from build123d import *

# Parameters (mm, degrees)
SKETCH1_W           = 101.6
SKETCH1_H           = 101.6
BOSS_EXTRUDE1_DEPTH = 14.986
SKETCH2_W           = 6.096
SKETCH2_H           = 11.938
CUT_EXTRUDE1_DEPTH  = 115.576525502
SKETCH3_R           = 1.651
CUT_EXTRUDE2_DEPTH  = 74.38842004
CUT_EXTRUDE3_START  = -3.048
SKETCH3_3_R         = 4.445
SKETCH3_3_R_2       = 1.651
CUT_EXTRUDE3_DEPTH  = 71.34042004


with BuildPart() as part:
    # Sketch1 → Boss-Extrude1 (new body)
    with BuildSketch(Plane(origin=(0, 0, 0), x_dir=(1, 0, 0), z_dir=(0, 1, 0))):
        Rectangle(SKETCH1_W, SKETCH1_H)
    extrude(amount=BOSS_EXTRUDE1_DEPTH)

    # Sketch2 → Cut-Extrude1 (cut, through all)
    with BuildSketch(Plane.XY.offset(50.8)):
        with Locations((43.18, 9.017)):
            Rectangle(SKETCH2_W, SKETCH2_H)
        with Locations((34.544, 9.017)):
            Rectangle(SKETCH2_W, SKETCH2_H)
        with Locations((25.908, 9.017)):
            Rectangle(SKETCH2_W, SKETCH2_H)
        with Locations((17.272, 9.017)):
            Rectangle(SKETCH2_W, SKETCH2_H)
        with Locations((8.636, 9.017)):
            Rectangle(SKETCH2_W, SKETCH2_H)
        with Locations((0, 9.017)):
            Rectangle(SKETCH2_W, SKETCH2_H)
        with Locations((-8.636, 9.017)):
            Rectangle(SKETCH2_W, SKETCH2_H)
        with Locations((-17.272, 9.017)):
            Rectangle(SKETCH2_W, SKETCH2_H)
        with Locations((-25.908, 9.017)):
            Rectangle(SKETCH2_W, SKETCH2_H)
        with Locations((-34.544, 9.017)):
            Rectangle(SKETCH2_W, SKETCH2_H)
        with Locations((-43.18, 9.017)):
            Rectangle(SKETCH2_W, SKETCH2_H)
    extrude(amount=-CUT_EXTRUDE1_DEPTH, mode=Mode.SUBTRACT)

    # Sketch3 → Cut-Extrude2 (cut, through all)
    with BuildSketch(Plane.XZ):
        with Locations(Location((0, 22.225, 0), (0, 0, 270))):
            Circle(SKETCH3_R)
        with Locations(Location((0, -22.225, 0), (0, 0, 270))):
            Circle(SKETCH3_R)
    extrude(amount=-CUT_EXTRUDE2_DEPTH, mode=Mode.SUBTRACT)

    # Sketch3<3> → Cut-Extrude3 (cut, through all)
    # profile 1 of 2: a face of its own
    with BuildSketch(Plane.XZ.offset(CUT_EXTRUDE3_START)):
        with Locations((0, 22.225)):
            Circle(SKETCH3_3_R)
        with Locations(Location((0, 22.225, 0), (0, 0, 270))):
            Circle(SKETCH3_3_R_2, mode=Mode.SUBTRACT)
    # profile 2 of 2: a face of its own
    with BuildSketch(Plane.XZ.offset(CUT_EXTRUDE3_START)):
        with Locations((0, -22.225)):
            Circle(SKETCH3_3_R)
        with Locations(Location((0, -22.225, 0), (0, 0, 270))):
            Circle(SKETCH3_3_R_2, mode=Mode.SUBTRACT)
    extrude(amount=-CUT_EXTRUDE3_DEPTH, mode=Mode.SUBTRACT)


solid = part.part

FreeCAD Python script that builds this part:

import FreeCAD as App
import Part
import Sketcher

V = App.Vector
Q = App.Units.Quantity

doc = App.newDocument("Part")
body = doc.addObject("PartDesign::Body", "Body")

# Sketch on XZ plane
sketch1 = body.newObject("Sketcher::SketchObject", "Sketch")
sketch1.AttachmentSupport = (doc.getObject("XZ_Plane"), [""])
sketch1.MapMode = "FlatFace"
sketch1.addGeometry([
    Part.LineSegment(V(-51, -51, 0), V(-51, 51, 0)),
    Part.LineSegment(V(-51, 51, 0), V(51, 51, 0)),
    Part.LineSegment(V(51, 51, 0), V(51, -51, 0)),
    Part.LineSegment(V(51, -51, 0), V(-51, -51, 0)),
], False)
sketch1.addConstraint([
    Sketcher.Constraint("Coincident", 0, 2, 1, 1),
    Sketcher.Constraint("Coincident", 1, 2, 2, 1),
    Sketcher.Constraint("Coincident", 2, 2, 3, 1),
    Sketcher.Constraint("Coincident", 3, 2, 0, 1),
    Sketcher.Constraint("Vertical", 0),
    Sketcher.Constraint("Horizontal", 1),
    Sketcher.Constraint("Vertical", 2),
    Sketcher.Constraint("Horizontal", 3),
    Sketcher.Constraint("Symmetric", 0, 2, 2, 2, -1, 1),
    Sketcher.Constraint("Equal", 3, 0),
    Sketcher.Constraint("DistanceX", 1, 1, 1, 2, Q("4 in")),
])
pad1 = body.newObject("PartDesign::Pad", "Pad")
pad1.Profile = sketch1
pad1.Length = Q("0.59 in")
pad1.Reversed = True

# Sketch on XY plane
sketch2 = body.newObject("Sketcher::SketchObject", "Sketch001")
sketch2.AttachmentSupport = (doc.getObject("XY_Plane"), [""])
sketch2.MapMode = "FlatFace"
sketch2.AttachmentOffset = App.Placement(V(0, 0, 2 * 25.4), App.Rotation())
sketch2.addGeometry([
    Part.LineSegment(V(40, 15, 0), V(40, 3, 0)),  # 0
    Part.LineSegment(V(40, 3, 0), V(46, 3, 0)),  # 1
    Part.LineSegment(V(46, 3, 0), V(46, 15, 0)),  # 2
    Part.LineSegment(V(46, 15, 0), V(40, 15, 0)),  # 3
    Part.LineSegment(V(31, 15, 0), V(31, 3, 0)),  # 4
    Part.LineSegment(V(31, 3, 0), V(38, 3, 0)),  # 5
    Part.LineSegment(V(38, 3, 0), V(38, 15, 0)),  # 6
    Part.LineSegment(V(38, 15, 0), V(31, 15, 0)),  # 7
    Part.LineSegment(V(23, 15, 0), V(23, 3, 0)),  # 8
    Part.LineSegment(V(23, 3, 0), V(29, 3, 0)),  # 9
    Part.LineSegment(V(29, 3, 0), V(29, 15, 0)),  # 10
    Part.LineSegment(V(29, 15, 0), V(23, 15, 0)),  # 11
    Part.LineSegment(V(14, 15, 0), V(14, 3, 0)),  # 12
    Part.LineSegment(V(14, 3, 0), V(20, 3, 0)),  # 13
    Part.LineSegment(V(20, 3, 0), V(20, 15, 0)),  # 14
    Part.LineSegment(V(20, 15, 0), V(14, 15, 0)),  # 15
    Part.LineSegment(V(6, 15, 0), V(6, 3, 0)),  # 16
    Part.LineSegment(V(6, 3, 0), V(12, 3, 0)),  # 17
    Part.LineSegment(V(12, 3, 0), V(12, 15, 0)),  # 18
    Part.LineSegment(V(12, 15, 0), V(6, 15, 0)),  # 19
    Part.LineSegment(V(-3, 15, 0), V(-3, 3, 0)),  # 20
    Part.LineSegment(V(-3, 3, 0), V(3, 3, 0)),  # 21
    Part.LineSegment(V(3, 3, 0), V(3, 15, 0)),  # 22
    Part.LineSegment(V(3, 15, 0), V(-3, 15, 0)),  # 23
    Part.LineSegment(V(-12, 15, 0), V(-12, 3, 0)),  # 24
    Part.LineSegment(V(-12, 3, 0), V(-6, 3, 0)),  # 25
    Part.LineSegment(V(-6, 3, 0), V(-6, 15, 0)),  # 26
    Part.LineSegment(V(-6, 15, 0), V(-12, 15, 0)),  # 27
    Part.LineSegment(V(-20, 15, 0), V(-20, 3, 0)),  # 28
    Part.LineSegment(V(-20, 3, 0), V(-14, 3, 0)),  # 29
    Part.LineSegment(V(-14, 3, 0), V(-14, 15, 0)),  # 30
    Part.LineSegment(V(-14, 15, 0), V(-20, 15, 0)),  # 31
    Part.LineSegment(V(-29, 15, 0), V(-29, 3, 0)),  # 32
    Part.LineSegment(V(-29, 3, 0), V(-23, 3, 0)),  # 33
    Part.LineSegment(V(-23, 3, 0), V(-23, 15, 0)),  # 34
    Part.LineSegment(V(-23, 15, 0), V(-29, 15, 0)),  # 35
    Part.LineSegment(V(-38, 15, 0), V(-38, 3, 0)),  # 36
    Part.LineSegment(V(-38, 3, 0), V(-31, 3, 0)),  # 37
    Part.LineSegment(V(-31, 3, 0), V(-31, 15, 0)),  # 38
    Part.LineSegment(V(-31, 15, 0), V(-38, 15, 0)),  # 39
    Part.LineSegment(V(-46, 15, 0), V(-46, 3, 0)),  # 40
    Part.LineSegment(V(-46, 3, 0), V(-40, 3, 0)),  # 41
    Part.LineSegment(V(-40, 3, 0), V(-40, 15, 0)),  # 42
    Part.LineSegment(V(-40, 15, 0), V(-46, 15, 0)),  # 43
], False)
sketch2.addConstraint([
    Sketcher.Constraint("Coincident", 0, 2, 1, 1),
    Sketcher.Constraint("Coincident", 1, 2, 2, 1),
    Sketcher.Constraint("Coincident", 2, 2, 3, 1),
    Sketcher.Constraint("Coincident", 3, 2, 0, 1),
    Sketcher.Constraint("Coincident", 4, 2, 5, 1),
    Sketcher.Constraint("Coincident", 5, 2, 6, 1),
    Sketcher.Constraint("Coincident", 6, 2, 7, 1),
    Sketcher.Constraint("Coincident", 7, 2, 4, 1),
    Sketcher.Constraint("Coincident", 8, 2, 9, 1),
    Sketcher.Constraint("Coincident", 9, 2, 10, 1),
    Sketcher.Constraint("Coincident", 10, 2, 11, 1),
    Sketcher.Constraint("Coincident", 11, 2, 8, 1),
    Sketcher.Constraint("Coincident", 12, 2, 13, 1),
    Sketcher.Constraint("Coincident", 13, 2, 14, 1),
    Sketcher.Constraint("Coincident", 14, 2, 15, 1),
    Sketcher.Constraint("Coincident", 15, 2, 12, 1),
    Sketcher.Constraint("Coincident", 16, 2, 17, 1),
    Sketcher.Constraint("Coincident", 17, 2, 18, 1),
    Sketcher.Constraint("Coincident", 18, 2, 19, 1),
    Sketcher.Constraint("Coincident", 19, 2, 16, 1),
    Sketcher.Constraint("Coincident", 20, 2, 21, 1),
    Sketcher.Constraint("Coincident", 21, 2, 22, 1),
    Sketcher.Constraint("Coincident", 22, 2, 23, 1),
    Sketcher.Constraint("Coincident", 23, 2, 20, 1),
    Sketcher.Constraint("Coincident", 24, 2, 25, 1),
    Sketcher.Constraint("Coincident", 25, 2, 26, 1),
    Sketcher.Constraint("Coincident", 26, 2, 27, 1),
    Sketcher.Constraint("Coincident", 27, 2, 24, 1),
    Sketcher.Constraint("Coincident", 28, 2, 29, 1),
    Sketcher.Constraint("Coincident", 29, 2, 30, 1),
    Sketcher.Constraint("Coincident", 30, 2, 31, 1),
    Sketcher.Constraint("Coincident", 31, 2, 28, 1),
    Sketcher.Constraint("Coincident", 32, 2, 33, 1),
    Sketcher.Constraint("Coincident", 33, 2, 34, 1),
    Sketcher.Constraint("Coincident", 34, 2, 35, 1),
    Sketcher.Constraint("Coincident", 35, 2, 32, 1),
    Sketcher.Constraint("Coincident", 36, 2, 37, 1),
    Sketcher.Constraint("Coincident", 37, 2, 38, 1),
    Sketcher.Constraint("Coincident", 38, 2, 39, 1),
    Sketcher.Constraint("Coincident", 39, 2, 36, 1),
    Sketcher.Constraint("Coincident", 40, 2, 41, 1),
    Sketcher.Constraint("Coincident", 41, 2, 42, 1),
    Sketcher.Constraint("Coincident", 42, 2, 43, 1),
    Sketcher.Constraint("Coincident", 43, 2, 40, 1),
    Sketcher.Constraint("Vertical", 0),
    Sketcher.Constraint("Horizontal", 1),
    Sketcher.Constraint("Vertical", 2),
    Sketcher.Constraint("Horizontal", 3),
    Sketcher.Constraint("Vertical", 4),
    Sketcher.Constraint("Horizontal", 5),
    Sketcher.Constraint("Vertical", 6),
    Sketcher.Constraint("Horizontal", 7),
    Sketcher.Constraint("Vertical", 8),
    Sketcher.Constraint("Horizontal", 9),
    Sketcher.Constraint("Vertical", 10),
    Sketcher.Constraint("Horizontal", 11),
    Sketcher.Constraint("Vertical", 12),
    Sketcher.Constraint("Horizontal", 13),
    Sketcher.Constraint("Vertical", 14),
    Sketcher.Constraint("Horizontal", 15),
    Sketcher.Constraint("Vertical", 16),
    Sketcher.Constraint("Horizontal", 17),
    Sketcher.Constraint("Vertical", 18),
    Sketcher.Constraint("Horizontal", 19),
    Sketcher.Constraint("Vertical", 20),
    Sketcher.Constraint("Horizontal", 21),
    Sketcher.Constraint("Vertical", 22),
    Sketcher.Constraint("Horizontal", 23),
    Sketcher.Constraint("Vertical", 24),
    Sketcher.Constraint("Horizontal", 25),
    Sketcher.Constraint("Vertical", 26),
    Sketcher.Constraint("Horizontal", 27),
    Sketcher.Constraint("Vertical", 28),
    Sketcher.Constraint("Horizontal", 29),
    Sketcher.Constraint("Vertical", 30),
    Sketcher.Constraint("Horizontal", 31),
    Sketcher.Constraint("Vertical", 32),
    Sketcher.Constraint("Horizontal", 33),
    Sketcher.Constraint("Vertical", 34),
    Sketcher.Constraint("Horizontal", 35),
    Sketcher.Constraint("Vertical", 36),
    Sketcher.Constraint("Horizontal", 37),
    Sketcher.Constraint("Vertical", 38),
    Sketcher.Constraint("Horizontal", 39),
    Sketcher.Constraint("Vertical", 40),
    Sketcher.Constraint("Horizontal", 41),
    Sketcher.Constraint("Vertical", 42),
    Sketcher.Constraint("Horizontal", 43),
    Sketcher.Constraint("Symmetric", 17, 2, 24, 2, -2),
    Sketcher.Constraint("Symmetric", 19, 2, 26, 2, -2),
    Sketcher.Constraint("Symmetric", 13, 2, 28, 2, -2),
    Sketcher.Constraint("Symmetric", 15, 2, 30, 2, -2),
    Sketcher.Constraint("Symmetric", 9, 2, 32, 2, -2),
    Sketcher.Constraint("Symmetric", 11, 2, 34, 2, -2),
    Sketcher.Constraint("Symmetric", 5, 2, 36, 2, -2),
    Sketcher.Constraint("Symmetric", 7, 2, 38, 2, -2),
    Sketcher.Constraint("Symmetric", 1, 2, 40, 2, -2),
    Sketcher.Constraint("Symmetric", 3, 2, 42, 2, -2),
    Sketcher.Constraint("Horizontal", 1, 2, 4, 2),
    Sketcher.Constraint("Horizontal", 3, 2, 6, 2),
    Sketcher.Constraint("Horizontal", 5, 2, 8, 2),
    Sketcher.Constraint("Horizontal", 7, 2, 10, 2),
    Sketcher.Constraint("Horizontal", 9, 2, 12, 2),
    Sketcher.Constraint("Horizontal", 11, 2, 14, 2),
    Sketcher.Constraint("Horizontal", 13, 2, 16, 2),
    Sketcher.Constraint("Horizontal", 15, 2, 18, 2),
    Sketcher.Constraint("Horizontal", 17, 2, 20, 2),
    Sketcher.Constraint("Horizontal", 19, 2, 22, 2),
    Sketcher.Constraint("Equal", 3, 5),
    Sketcher.Constraint("Equal", 7, 9),
    Sketcher.Constraint("Equal", 11, 13),
    Sketcher.Constraint("Equal", 15, 17),
    Sketcher.Constraint("Equal", 19, 21),
    Sketcher.Constraint("DistanceX", 1, 1, 1, 2, Q("0.24 in")),
    Sketcher.Constraint("DistanceY", 0, 2, 0, 1, Q("0.47 in")),
    Sketcher.Constraint("DistanceX", -1, 1, 8, 2, Q("0.9 in")),
    Sketcher.Constraint("DistanceX", -1, 1, 13, 2, Q("0.8 in")),
    Sketcher.Constraint("DistanceX", 5, 2, 0, 2, Q("0.1 in")),
    Sketcher.Constraint("DistanceX", 9, 2, 4, 2, Q("0.1 in")),
    Sketcher.Constraint("DistanceX", 17, 2, 12, 2, Q("0.1 in")),
    Sketcher.Constraint("DistanceX", 21, 2, 16, 2, Q("0.1 in")),
    Sketcher.Constraint("DistanceY", -1, 1, 0, 2, Q("0.12 in")),
])
pocket1 = body.newObject("PartDesign::Pocket", "Pocket")
pocket1.Profile = sketch2
pocket1.Type = "ThroughAll"

# Sketch on XZ plane
sketch3 = body.newObject("Sketcher::SketchObject", "Sketch002")
sketch3.AttachmentSupport = (doc.getObject("XZ_Plane"), [""])
sketch3.MapMode = "FlatFace"
sketch3.addGeometry([
    Part.Circle(V(0, 22.2, 0), V(0, 0, 1), 1.7),
    Part.Circle(V(0, -22.2, 0), V(0, 0, 1), 1.7),
], False)
sketch3.addConstraint([
    Sketcher.Constraint("Equal", 0, 1),
    Sketcher.Constraint("Symmetric", 0, 3, 1, 3, -1, 1),
    Sketcher.Constraint("PointOnObject", 0, 3, -2),
    Sketcher.Constraint("Diameter", 0, Q("0.13 in")),
    Sketcher.Constraint("DistanceY", 1, 3, 0, 3, Q("1.75 in")),
])
pocket2 = body.newObject("PartDesign::Pocket", "Pocket001")
pocket2.Profile = sketch3
pocket2.Type = "ThroughAll"

# Sketch on XZ plane
sketch4 = body.newObject("Sketcher::SketchObject", "Sketch003")
sketch4.AttachmentSupport = (doc.getObject("XZ_Plane"), [""])
sketch4.MapMode = "FlatFace"
sketch4.AttachmentOffset = App.Placement(V(0, 0, -0.12 * 25.4), App.Rotation())
sketch4.addGeometry([
    Part.Circle(V(0, 22.2, 0), V(0, 0, 1), 4.4),
    Part.Circle(V(0, 22.2, 0), V(0, 0, 1), 1.7),
    Part.Circle(V(0, -22.2, 0), V(0, 0, 1), 4.4),
    Part.Circle(V(0, -22.2, 0), V(0, 0, 1), 1.7),
], False)
sketch4.addConstraint([
    Sketcher.Constraint("Coincident", 1, 3, 0, 3),
    Sketcher.Constraint("Coincident", 3, 3, 2, 3),
    Sketcher.Constraint("Equal", 0, 2),
    Sketcher.Constraint("Equal", 1, 3),
    Sketcher.Constraint("Symmetric", 0, 3, 2, 3, -1, 1),
    Sketcher.Constraint("PointOnObject", 0, 3, -2),
    Sketcher.Constraint("Diameter", 0, Q("0.35 in")),
    Sketcher.Constraint("Diameter", 1, Q("0.13 in")),
    Sketcher.Constraint("DistanceY", 2, 3, 0, 3, Q("1.75 in")),
])
pocket3 = body.newObject("PartDesign::Pocket", "Pocket002")
pocket3.Profile = sketch4
pocket3.Length = 71.34042

doc.recompute()
